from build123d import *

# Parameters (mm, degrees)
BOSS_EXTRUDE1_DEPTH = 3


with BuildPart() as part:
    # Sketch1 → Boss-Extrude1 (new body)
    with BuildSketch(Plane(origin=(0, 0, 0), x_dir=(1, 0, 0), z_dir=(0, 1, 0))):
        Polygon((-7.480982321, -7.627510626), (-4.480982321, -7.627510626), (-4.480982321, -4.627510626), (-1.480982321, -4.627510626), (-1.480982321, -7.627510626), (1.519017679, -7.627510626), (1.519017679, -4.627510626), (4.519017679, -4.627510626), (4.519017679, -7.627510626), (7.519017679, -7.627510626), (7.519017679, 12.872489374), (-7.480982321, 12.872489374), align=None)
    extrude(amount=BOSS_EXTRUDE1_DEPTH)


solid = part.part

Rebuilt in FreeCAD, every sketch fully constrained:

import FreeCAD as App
import Part
import Sketcher
Q = App.Units.Quantity


def add_polygon(sketch, points):
    """Adds a closed chain of lines whose ends are joined by coincident constraints."""
    first, n = sketch.GeometryCount, len(points)
    for a, b in zip(points, points[1:] + points[:1]):
        sketch.addGeometry(Part.LineSegment(App.Vector(*a, 0), App.Vector(*b, 0)), False)
    for i in range(n):
        sketch.addConstraint(Sketcher.Constraint("Coincident", first + i, 2, first + (i + 1) % n, 1))

doc = App.newDocument("Part")
params = doc.addObject("Spreadsheet::Sheet", "Params")
for row, (alias, value) in enumerate([
    ("sketch1_width", "3 mm"),
    ("sketch1_height", "20.5 mm"),
    ("pad1_length", "3 mm"),
], start=1):
    params.set(f"A{row}", alias)
    params.set(f"B{row}", "=" + value)
    params.setAlias(f"B{row}", alias)

body = doc.addObject("PartDesign::Body", "Body")

sketch1 = doc.addObject("Sketcher::SketchObject", "Sketch")
body.addObject(sketch1)
sketch1.AttachmentSupport = (doc.XZ_Plane, [""])
sketch1.MapMode = "FlatFace"
add_polygon(sketch1, [(-7.480982, 7.627511), (-4.480982, 7.627511), (-4.480982, 4.627511), (-1.480982, 4.627511), (-1.480982, 7.627511), (1.519018, 7.627511), (1.519018, 4.627511), (4.519018, 4.627511), (4.519018, 7.627511), (7.519018, 7.627511), (7.519018, -12.872489), (-7.480982, -12.872489)])
sketch1.addConstraint([
    Sketcher.Constraint("Horizontal", 0),
    Sketcher.Constraint("Vertical", 1),
    Sketcher.Constraint("Horizontal", 2),
    Sketcher.Constraint("Vertical", 3),
    Sketcher.Constraint("Horizontal", 4),
    Sketcher.Constraint("Vertical", 5),
    Sketcher.Constraint("Horizontal", 6),
    Sketcher.Constraint("Vertical", 7),
    Sketcher.Constraint("Horizontal", 8),
    Sketcher.Constraint("Vertical", 9),
    Sketcher.Constraint("Horizontal", 10),
    Sketcher.Constraint("Vertical", 11),
    Sketcher.Constraint("Horizontal", 0, 2, 3, 2),
    Sketcher.Constraint("Horizontal", 2, 2, 5, 2),
    Sketcher.Constraint("Horizontal", 4, 2, 7, 2),
    Sketcher.Constraint("Equal", 0, 2),
    Sketcher.Constraint("Equal", 2, 4),
    Sketcher.Constraint("Equal", 4, 6),
    Sketcher.Constraint("Equal", 6, 8),
    Sketcher.Constraint("Equal", 8, 1),
    Sketcher.Constraint("DistanceX", 0, 1, 0, 2, Q("3 mm")),
    Sketcher.Constraint("DistanceY", 9, 2, 9, 1, Q("20.5 mm")),
    Sketcher.Constraint("DistanceY", -1, 1, 0, 2, Q("7.627511 mm")),
    Sketcher.Constraint("DistanceX", 0, 2, -1, 1, Q("4.480982 mm")),
])
sketch1.setExpression("Constraints[32]", "Params.sketch1_width")
sketch1.setExpression("Constraints[33]", "Params.sketch1_height")
pad1 = doc.addObject("PartDesign::Pad", "Pad")
body.addObject(pad1)
pad1.Profile = sketch1
pad1.setExpression("Length", "Params.pad1_length")
pad1.Reversed = True

doc.recompute()
